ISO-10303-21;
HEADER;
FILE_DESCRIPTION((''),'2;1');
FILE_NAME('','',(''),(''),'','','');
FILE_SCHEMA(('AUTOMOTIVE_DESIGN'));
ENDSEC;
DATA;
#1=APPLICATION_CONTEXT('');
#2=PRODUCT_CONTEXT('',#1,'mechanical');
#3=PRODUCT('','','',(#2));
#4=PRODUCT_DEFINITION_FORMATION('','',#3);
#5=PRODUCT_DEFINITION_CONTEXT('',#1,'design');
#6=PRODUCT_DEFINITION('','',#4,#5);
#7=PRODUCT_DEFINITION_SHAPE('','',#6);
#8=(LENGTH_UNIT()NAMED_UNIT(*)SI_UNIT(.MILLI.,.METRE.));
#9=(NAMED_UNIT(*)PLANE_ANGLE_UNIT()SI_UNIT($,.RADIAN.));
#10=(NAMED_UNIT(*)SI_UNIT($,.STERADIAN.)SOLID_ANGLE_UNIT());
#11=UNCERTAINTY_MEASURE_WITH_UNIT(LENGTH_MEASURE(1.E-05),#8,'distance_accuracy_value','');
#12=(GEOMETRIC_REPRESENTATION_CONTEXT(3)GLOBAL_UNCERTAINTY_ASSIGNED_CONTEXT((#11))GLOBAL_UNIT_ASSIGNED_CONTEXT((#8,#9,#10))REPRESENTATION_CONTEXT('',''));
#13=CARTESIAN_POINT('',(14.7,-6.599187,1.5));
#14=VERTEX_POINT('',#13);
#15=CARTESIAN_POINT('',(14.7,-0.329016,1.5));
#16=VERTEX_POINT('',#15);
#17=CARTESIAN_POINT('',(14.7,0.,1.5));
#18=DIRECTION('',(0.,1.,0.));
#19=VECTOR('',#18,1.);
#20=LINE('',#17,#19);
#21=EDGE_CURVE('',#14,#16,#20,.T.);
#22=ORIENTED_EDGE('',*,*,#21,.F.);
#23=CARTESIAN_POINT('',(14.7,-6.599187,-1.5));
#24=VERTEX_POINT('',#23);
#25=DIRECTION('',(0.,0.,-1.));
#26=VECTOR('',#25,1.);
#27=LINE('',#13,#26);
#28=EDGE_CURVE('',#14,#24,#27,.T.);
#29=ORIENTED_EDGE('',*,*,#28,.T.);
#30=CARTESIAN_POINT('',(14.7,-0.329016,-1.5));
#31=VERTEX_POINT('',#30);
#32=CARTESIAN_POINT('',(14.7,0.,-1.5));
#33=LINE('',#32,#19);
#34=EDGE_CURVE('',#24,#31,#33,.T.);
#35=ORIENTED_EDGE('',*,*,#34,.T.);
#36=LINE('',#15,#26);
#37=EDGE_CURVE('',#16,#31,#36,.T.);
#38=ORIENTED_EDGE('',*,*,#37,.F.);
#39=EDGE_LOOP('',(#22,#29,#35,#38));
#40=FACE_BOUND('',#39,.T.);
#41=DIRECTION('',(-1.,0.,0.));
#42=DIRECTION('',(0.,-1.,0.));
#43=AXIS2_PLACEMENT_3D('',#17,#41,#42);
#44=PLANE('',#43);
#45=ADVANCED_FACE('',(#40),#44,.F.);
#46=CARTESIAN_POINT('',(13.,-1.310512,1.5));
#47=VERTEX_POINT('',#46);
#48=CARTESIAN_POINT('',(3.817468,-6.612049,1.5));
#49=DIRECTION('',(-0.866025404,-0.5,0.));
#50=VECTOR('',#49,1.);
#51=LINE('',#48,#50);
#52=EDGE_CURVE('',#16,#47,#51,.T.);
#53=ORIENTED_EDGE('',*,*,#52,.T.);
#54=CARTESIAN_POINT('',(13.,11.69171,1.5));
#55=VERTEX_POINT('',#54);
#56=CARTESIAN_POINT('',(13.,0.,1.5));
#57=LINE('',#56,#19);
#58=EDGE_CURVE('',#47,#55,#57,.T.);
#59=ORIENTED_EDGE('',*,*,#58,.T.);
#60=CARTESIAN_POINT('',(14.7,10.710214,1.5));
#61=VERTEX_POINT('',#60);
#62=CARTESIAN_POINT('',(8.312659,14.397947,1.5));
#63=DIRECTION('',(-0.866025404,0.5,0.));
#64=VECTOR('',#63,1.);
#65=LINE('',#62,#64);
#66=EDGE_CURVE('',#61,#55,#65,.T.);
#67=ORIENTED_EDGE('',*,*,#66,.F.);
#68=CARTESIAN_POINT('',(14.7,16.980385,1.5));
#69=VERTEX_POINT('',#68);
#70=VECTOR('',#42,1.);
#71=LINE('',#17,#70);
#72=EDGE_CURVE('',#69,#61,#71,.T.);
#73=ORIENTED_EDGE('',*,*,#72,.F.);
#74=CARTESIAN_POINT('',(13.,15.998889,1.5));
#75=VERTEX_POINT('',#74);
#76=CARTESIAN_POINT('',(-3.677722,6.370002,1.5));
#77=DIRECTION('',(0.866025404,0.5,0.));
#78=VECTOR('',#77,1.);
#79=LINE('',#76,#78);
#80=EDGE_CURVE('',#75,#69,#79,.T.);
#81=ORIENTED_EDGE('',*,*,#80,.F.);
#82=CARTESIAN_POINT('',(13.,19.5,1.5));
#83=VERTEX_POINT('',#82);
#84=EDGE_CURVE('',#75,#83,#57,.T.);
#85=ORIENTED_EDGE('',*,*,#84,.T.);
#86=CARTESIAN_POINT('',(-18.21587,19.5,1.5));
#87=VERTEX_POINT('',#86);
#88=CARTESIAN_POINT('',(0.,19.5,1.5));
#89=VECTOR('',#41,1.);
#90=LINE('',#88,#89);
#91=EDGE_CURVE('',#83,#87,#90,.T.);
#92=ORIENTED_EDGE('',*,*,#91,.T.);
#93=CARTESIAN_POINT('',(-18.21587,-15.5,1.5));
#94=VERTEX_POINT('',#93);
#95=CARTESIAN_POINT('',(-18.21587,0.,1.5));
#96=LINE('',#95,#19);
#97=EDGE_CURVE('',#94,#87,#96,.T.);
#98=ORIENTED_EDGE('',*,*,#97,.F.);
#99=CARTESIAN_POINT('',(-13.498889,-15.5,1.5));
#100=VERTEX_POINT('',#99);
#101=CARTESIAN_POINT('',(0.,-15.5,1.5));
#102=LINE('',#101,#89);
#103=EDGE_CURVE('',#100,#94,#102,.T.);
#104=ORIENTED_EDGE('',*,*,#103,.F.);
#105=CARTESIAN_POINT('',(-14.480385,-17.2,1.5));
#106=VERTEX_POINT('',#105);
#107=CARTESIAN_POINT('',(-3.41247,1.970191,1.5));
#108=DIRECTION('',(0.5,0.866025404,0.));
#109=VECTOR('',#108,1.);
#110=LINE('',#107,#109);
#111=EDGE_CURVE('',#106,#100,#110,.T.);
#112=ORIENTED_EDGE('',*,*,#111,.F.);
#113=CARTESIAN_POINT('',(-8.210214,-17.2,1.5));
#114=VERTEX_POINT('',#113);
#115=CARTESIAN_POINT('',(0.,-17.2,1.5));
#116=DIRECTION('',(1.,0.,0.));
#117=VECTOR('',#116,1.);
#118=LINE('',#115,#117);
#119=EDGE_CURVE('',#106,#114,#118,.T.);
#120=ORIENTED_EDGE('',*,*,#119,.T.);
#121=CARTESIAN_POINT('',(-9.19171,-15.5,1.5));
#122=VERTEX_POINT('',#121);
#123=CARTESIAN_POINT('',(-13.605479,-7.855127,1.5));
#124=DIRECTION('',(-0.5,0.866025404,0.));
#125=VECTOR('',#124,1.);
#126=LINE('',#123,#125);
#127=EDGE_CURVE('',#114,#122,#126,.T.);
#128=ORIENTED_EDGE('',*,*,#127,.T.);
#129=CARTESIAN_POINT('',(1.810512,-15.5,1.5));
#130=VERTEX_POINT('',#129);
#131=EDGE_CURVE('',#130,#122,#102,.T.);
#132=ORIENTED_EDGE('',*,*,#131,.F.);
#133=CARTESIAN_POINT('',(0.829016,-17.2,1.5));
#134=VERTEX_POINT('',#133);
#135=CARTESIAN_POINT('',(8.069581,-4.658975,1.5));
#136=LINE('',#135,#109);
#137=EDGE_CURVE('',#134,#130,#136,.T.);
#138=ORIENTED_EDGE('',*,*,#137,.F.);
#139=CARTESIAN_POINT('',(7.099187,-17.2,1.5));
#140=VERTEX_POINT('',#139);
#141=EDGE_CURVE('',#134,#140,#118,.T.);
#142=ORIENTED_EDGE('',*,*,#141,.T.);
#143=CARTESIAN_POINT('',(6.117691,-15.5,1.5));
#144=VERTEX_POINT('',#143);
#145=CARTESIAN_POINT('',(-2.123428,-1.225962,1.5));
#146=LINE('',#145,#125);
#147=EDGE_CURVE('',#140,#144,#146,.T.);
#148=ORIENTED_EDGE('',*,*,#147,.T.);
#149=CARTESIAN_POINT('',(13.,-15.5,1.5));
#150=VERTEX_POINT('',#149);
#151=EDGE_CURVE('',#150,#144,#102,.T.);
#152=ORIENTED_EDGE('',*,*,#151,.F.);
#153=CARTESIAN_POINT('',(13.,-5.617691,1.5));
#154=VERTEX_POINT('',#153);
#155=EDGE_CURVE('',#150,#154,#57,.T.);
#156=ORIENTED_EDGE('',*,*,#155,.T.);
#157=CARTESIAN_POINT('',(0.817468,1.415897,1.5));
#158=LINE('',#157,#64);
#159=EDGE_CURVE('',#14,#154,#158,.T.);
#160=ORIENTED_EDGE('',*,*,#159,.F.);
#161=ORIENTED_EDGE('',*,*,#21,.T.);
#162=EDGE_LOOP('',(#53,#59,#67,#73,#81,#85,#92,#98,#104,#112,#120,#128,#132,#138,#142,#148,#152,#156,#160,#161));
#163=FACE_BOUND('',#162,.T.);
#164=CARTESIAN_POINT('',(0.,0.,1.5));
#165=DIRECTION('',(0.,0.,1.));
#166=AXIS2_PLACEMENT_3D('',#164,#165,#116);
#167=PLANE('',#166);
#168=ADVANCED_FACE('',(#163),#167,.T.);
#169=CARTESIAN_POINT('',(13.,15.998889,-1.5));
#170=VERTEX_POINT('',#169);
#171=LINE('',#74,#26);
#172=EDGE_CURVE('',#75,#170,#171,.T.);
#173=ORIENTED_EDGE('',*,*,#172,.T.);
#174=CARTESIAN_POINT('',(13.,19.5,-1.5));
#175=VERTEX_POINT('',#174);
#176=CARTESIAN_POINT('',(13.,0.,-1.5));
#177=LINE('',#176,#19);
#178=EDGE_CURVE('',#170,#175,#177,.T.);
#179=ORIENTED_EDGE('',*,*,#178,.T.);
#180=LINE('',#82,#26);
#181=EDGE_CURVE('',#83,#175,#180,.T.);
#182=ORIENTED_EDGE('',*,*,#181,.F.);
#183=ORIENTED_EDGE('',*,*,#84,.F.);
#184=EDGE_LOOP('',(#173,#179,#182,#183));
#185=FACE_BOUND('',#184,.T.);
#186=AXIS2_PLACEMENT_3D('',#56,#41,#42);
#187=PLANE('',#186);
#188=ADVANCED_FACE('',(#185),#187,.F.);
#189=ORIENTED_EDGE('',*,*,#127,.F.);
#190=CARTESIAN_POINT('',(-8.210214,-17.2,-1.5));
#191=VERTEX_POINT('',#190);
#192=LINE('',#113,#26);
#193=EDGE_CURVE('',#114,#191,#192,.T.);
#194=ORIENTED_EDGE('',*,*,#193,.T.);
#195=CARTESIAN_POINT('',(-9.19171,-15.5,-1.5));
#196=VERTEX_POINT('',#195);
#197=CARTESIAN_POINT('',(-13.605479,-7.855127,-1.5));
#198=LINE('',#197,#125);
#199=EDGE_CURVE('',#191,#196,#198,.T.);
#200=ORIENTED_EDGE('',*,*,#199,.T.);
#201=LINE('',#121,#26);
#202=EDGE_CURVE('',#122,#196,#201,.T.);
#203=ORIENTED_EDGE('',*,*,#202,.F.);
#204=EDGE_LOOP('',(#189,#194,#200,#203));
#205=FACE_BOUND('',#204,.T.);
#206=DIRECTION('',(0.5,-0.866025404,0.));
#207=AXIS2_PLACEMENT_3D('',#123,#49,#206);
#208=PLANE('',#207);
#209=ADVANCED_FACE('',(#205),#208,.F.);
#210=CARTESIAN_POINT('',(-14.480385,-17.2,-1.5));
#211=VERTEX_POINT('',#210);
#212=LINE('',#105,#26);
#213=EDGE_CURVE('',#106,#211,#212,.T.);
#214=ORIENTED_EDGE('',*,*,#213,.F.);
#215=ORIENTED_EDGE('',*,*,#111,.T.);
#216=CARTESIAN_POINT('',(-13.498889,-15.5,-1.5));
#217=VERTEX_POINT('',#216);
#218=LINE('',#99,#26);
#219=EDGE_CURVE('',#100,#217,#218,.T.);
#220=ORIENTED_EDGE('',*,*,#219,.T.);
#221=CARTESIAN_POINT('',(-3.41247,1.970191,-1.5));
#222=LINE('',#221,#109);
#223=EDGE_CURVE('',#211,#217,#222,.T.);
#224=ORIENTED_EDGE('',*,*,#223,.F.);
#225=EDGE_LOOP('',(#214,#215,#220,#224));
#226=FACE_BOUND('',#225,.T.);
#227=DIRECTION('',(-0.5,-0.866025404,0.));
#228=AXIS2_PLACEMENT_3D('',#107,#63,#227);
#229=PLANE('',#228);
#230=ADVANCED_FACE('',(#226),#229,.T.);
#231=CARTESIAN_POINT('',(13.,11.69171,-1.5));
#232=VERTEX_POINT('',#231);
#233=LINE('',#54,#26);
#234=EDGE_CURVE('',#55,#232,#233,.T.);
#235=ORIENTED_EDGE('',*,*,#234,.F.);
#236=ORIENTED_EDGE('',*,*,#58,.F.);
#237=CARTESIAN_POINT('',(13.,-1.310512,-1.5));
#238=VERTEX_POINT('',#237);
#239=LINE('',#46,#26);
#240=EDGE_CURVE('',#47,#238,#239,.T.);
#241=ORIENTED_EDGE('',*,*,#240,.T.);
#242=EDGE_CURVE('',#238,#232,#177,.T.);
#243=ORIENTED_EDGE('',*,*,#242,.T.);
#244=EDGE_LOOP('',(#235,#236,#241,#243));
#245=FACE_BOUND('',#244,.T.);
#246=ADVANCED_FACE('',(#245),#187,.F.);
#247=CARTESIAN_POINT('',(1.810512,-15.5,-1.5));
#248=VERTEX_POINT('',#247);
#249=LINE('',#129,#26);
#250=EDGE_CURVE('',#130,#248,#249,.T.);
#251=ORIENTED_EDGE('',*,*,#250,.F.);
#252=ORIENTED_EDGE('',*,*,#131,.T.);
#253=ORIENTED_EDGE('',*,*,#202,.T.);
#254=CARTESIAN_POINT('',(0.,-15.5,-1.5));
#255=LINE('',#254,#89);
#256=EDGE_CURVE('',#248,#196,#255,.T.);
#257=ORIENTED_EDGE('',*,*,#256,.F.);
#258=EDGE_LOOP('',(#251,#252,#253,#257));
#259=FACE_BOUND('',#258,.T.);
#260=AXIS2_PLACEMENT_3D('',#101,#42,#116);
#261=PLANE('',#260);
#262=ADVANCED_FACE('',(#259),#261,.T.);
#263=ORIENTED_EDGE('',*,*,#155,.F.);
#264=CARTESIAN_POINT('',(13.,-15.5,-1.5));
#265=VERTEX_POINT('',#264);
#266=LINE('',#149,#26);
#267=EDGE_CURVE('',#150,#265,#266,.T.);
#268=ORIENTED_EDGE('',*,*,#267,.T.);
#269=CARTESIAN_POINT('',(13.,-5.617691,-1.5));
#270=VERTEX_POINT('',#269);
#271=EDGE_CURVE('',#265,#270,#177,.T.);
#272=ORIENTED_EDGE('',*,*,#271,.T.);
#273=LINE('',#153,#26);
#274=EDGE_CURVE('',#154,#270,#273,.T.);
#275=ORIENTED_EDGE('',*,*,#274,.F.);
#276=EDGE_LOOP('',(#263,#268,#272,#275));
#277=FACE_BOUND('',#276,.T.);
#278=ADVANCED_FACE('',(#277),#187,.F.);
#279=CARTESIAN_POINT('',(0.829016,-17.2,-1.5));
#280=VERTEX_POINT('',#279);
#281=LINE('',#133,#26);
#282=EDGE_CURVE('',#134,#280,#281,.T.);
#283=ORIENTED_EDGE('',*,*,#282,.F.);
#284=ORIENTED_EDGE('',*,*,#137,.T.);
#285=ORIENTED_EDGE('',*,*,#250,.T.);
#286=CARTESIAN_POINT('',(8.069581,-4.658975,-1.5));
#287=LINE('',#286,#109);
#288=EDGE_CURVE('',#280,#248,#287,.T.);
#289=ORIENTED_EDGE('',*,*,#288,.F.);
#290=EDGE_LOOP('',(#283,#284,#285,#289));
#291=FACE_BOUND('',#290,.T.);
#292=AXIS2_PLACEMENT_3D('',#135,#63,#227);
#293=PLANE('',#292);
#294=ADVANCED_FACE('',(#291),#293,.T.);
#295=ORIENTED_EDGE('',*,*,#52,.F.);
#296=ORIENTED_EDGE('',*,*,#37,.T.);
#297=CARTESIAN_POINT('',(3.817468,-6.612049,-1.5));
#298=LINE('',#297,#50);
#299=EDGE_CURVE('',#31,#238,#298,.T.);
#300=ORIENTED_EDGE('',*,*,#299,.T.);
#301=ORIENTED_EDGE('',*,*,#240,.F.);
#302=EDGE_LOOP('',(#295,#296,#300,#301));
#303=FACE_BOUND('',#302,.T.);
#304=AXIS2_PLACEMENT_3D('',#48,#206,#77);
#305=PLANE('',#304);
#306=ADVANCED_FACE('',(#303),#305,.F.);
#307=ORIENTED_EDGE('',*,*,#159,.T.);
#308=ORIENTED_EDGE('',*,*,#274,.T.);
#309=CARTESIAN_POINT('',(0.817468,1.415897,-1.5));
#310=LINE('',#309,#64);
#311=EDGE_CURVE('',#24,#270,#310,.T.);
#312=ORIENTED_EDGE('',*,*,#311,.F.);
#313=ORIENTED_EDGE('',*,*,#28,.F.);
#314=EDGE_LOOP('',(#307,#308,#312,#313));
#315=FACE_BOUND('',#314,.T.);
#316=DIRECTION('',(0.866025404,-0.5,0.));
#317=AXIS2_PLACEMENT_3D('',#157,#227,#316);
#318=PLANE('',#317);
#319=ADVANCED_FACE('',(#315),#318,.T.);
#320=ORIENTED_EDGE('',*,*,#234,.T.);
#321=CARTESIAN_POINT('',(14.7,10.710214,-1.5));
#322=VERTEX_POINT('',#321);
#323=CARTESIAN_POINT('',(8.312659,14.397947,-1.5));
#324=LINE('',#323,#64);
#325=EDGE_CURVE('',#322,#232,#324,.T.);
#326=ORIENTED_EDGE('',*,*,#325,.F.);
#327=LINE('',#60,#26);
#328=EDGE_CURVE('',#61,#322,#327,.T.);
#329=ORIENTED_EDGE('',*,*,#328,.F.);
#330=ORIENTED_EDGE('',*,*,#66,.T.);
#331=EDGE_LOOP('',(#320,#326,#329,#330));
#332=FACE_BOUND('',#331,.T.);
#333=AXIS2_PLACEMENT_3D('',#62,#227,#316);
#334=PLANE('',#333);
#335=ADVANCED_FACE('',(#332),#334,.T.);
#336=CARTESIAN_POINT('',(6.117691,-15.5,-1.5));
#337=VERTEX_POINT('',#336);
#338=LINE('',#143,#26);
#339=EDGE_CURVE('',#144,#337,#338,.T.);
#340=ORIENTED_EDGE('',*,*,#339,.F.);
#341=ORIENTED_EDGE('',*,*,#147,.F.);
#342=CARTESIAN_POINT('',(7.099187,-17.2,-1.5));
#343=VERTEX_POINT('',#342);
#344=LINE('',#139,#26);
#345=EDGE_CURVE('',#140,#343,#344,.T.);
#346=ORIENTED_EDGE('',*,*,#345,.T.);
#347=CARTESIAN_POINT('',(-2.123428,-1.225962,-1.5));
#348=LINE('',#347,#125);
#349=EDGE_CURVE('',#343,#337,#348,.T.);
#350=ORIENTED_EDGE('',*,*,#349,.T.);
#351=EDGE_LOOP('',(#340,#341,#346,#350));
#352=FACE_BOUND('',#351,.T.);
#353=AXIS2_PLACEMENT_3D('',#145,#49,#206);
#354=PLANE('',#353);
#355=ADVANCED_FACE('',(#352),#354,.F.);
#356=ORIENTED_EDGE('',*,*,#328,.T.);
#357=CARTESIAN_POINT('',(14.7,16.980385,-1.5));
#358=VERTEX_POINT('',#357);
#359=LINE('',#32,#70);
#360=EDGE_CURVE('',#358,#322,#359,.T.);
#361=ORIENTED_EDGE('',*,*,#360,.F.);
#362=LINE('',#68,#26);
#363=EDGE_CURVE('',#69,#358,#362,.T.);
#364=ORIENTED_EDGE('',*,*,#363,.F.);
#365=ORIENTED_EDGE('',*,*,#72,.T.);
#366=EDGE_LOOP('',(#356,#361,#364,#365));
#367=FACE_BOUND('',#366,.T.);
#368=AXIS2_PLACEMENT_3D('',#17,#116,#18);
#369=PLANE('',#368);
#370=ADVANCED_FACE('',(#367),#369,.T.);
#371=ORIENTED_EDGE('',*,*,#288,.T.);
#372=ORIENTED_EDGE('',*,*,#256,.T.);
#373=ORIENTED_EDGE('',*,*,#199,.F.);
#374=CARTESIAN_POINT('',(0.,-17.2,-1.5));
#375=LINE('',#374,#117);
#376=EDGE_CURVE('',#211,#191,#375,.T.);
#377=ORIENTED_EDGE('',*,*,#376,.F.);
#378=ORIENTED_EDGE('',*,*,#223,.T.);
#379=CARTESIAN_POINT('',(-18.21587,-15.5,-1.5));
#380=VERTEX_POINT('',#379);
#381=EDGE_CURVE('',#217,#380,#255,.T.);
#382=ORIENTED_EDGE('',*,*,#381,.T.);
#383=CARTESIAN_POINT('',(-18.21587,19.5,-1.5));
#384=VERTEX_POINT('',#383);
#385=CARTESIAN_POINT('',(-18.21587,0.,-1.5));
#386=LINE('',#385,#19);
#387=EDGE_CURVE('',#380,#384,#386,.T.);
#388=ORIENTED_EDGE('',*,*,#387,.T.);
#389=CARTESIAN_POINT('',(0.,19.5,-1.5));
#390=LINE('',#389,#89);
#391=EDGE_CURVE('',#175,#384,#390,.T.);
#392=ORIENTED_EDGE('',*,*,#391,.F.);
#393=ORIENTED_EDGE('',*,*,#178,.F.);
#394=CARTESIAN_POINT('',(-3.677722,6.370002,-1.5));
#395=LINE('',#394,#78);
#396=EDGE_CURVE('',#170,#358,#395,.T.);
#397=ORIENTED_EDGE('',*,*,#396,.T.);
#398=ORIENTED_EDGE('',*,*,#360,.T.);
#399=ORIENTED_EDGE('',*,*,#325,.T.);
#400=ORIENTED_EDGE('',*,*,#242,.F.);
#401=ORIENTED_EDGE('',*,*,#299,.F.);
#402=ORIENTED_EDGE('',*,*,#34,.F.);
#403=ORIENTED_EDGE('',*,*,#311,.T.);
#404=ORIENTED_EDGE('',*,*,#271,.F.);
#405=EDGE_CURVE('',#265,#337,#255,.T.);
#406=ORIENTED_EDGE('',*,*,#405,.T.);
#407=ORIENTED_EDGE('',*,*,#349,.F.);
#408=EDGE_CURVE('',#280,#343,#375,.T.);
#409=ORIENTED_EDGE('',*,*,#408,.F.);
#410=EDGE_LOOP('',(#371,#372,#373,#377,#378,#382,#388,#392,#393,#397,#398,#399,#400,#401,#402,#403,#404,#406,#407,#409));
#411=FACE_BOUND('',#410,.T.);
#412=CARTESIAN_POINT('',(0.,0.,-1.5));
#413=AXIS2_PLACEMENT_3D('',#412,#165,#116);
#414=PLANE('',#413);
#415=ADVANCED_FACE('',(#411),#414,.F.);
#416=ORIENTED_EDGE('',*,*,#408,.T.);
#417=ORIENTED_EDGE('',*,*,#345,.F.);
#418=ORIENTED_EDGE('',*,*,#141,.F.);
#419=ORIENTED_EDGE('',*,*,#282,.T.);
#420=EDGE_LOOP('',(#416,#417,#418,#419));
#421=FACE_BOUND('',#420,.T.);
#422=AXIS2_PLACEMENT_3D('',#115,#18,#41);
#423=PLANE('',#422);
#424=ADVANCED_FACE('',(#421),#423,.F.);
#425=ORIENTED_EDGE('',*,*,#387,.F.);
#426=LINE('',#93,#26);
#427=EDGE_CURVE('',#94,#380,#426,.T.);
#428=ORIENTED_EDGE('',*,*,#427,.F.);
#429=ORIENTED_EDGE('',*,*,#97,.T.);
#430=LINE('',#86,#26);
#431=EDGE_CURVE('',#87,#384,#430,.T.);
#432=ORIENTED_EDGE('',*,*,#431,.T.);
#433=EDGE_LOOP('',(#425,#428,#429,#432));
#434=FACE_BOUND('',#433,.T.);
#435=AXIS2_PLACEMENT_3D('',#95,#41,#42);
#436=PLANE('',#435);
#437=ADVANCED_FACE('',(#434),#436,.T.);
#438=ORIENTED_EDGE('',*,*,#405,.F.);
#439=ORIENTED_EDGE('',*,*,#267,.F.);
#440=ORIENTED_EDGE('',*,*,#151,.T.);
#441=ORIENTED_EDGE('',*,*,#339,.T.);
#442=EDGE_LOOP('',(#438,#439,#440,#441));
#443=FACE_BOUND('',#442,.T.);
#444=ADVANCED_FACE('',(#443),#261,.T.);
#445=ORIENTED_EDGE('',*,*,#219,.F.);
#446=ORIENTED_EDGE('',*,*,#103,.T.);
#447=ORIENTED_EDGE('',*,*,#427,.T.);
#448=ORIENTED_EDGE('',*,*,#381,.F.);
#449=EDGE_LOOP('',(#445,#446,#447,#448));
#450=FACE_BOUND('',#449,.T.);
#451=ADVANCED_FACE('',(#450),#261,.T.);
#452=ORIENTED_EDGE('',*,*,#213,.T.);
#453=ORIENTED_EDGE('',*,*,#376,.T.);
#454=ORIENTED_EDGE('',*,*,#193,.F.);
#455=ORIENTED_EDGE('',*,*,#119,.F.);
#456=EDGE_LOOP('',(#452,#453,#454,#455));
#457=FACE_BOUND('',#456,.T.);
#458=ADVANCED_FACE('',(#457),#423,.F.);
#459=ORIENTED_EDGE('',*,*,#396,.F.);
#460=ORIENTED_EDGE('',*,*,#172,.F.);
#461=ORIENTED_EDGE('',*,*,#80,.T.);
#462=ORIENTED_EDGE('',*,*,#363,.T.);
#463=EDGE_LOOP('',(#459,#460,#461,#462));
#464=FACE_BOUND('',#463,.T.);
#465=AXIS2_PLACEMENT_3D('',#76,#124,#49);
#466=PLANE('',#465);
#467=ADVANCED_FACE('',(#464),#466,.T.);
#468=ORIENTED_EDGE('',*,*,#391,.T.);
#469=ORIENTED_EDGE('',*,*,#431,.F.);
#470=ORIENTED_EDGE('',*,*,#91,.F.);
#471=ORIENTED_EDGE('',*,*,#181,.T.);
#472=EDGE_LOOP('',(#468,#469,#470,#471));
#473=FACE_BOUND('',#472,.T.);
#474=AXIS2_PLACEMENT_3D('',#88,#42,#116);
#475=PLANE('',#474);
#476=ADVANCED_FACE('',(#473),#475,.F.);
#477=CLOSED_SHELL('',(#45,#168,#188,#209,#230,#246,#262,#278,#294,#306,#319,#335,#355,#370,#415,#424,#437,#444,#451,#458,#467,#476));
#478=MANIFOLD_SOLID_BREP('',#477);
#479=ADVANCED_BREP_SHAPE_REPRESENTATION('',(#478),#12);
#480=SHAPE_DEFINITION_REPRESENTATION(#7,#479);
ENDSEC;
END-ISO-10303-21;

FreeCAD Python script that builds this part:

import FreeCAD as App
import Part
import Sketcher

V = App.Vector
Q = App.Units.Quantity


def add_polygon(sketch, points):
    """Adds a closed chain of lines whose ends are joined by coincident constraints."""
    first, n = sketch.GeometryCount, len(points)
    for a, b in zip(points, points[1:] + points[:1]):
        sketch.addGeometry(Part.LineSegment(App.Vector(*a, 0), App.Vector(*b, 0)), False)
    for i in range(n):
        sketch.addConstraint(Sketcher.Constraint("Coincident", first + i, 2, first + (i + 1) % n, 1))

doc = App.newDocument("Part")
body = doc.addObject("PartDesign::Body", "Body")

# Sketch on XY plane
sketch1 = body.newObject("Sketcher::SketchObject", "Sketch")
sketch1.AttachmentSupport = (doc.getObject("XY_Plane"), [""])
sketch1.MapMode = "FlatFace"
add_polygon(sketch1, [(-18.22, 19.5), (-18.22, -15.5), (-13.5, -15.5), (-13.59, -15.65), (-14.48, -17.2), (-8.21, -17.2), (-9.11, -15.65), (-9.19, -15.5), (1.81, -15.5), (1.72, -15.65), (0.83, -17.2), (7.1, -17.2), (6.2, -15.65), (6.12, -15.5), (13, -15.5), (13, -5.62), (13.15, -5.7), (14.7, -6.6), (14.7, -0.33), (13.15, -1.22), (13, -1.31), (13, 11.69), (13.15, 11.61), (14.7, 10.71), (14.7, 16.98), (13.15, 16.09), (13, 16), (13, 19.5)])  # lines 0-27
sketch1.addConstraint([
    Sketcher.Constraint("Vertical", 0),
    Sketcher.Constraint("Horizontal", 1),
    Sketcher.Constraint("Horizontal", 4),
    Sketcher.Constraint("Horizontal", 7),
    Sketcher.Constraint("Horizontal", 10),
    Sketcher.Constraint("Horizontal", 13),
    Sketcher.Constraint("Vertical", 14),
    Sketcher.Constraint("Vertical", 17),
    Sketcher.Constraint("Vertical", 20),
    Sketcher.Constraint("Vertical", 23),
    Sketcher.Constraint("Vertical", 26),
    Sketcher.Constraint("Horizontal", 27),
    Sketcher.Constraint("Parallel", 2, 3),
    Sketcher.Constraint("Parallel", 5, 6),
    Sketcher.Constraint("Parallel", 3, 8),
    Sketcher.Constraint("Parallel", 8, 9),
    Sketcher.Constraint("Parallel", 6, 11),
    Sketcher.Constraint("Parallel", 11, 12),
    Sketcher.Constraint("Perpendicular", 9, 15),
    Sketcher.Constraint("Parallel", 15, 16),
    Sketcher.Constraint("Perpendicular", 12, 18),
    Sketcher.Constraint("Parallel", 18, 19),
    Sketcher.Constraint("Parallel", 16, 21),
    Sketcher.Constraint("Parallel", 21, 22),
    Sketcher.Constraint("Parallel", 19, 24),
    Sketcher.Constraint("Parallel", 24, 25),
    Sketcher.Constraint("Horizontal", 2, 2, 5, 2),
    Sketcher.Constraint("Horizontal", 1, 2, 6, 2),
    Sketcher.Constraint("Horizontal", 5, 2, 8, 2),
    Sketcher.Constraint("Horizontal", 4, 2, 9, 2),
    Sketcher.Constraint("Horizontal", 8, 2, 11, 2),
    Sketcher.Constraint("Horizontal", 7, 2, 12, 2),
    Sketcher.Constraint("Vertical", 15, 2, 18, 2),
    Sketcher.Constraint("Vertical", 14, 2, 19, 2),
    Sketcher.Constraint("Vertical", 18, 2, 21, 2),
    Sketcher.Constraint("Vertical", 17, 2, 22, 2),
    Sketcher.Constraint("Vertical", 21, 2, 24, 2),
    Sketcher.Constraint("Vertical", 20, 2, 25, 2),
    Sketcher.Constraint("Equal", 4, 10),
    Sketcher.Constraint("Equal", 10, 17),
    Sketcher.Constraint("Equal", 17, 23),
    Sketcher.Constraint("Equal", 3, 5),
    Sketcher.Constraint("Equal", 12, 15),
    Sketcher.Constraint("Equal", 11, 16),
    Sketcher.Constraint("DistanceY", 0, 2, 0, 1, 35.0),
    Sketcher.Constraint("Angle", 2, Q("-120 deg")),
    Sketcher.Constraint("DistanceX", -1, 1, 13, 2, 13.0),
    Sketcher.Constraint("DistanceY", 0, 2, -1, 1, 15.5),
    Sketcher.Constraint("DistanceY", 3, 2, -1, 1, 17.2),
    Sketcher.Constraint("DistanceY", 2, 2, -1, 1, 15.65),
    Sketcher.Constraint("DistanceX", 1, 1, 1, 2, 4.71698),
    Sketcher.Constraint("DistanceX", 4, 1, 4, 2, 6.270171),
    Sketcher.Constraint("DistanceX", 7, 1, 7, 2, 11.002221),
    Sketcher.Constraint("DistanceX", 13, 1, 13, 2, 6.882309),
    Sketcher.Constraint("DistanceY", 14, 1, 14, 2, 9.882309),
    Sketcher.Constraint("DistanceY", 20, 1, 20, 2, 13.002221),
])
pad1 = body.newObject("PartDesign::Pad", "Pad")
pad1.Profile = sketch1
pad1.Length = 3
pad1.Midplane = True

doc.recompute()
